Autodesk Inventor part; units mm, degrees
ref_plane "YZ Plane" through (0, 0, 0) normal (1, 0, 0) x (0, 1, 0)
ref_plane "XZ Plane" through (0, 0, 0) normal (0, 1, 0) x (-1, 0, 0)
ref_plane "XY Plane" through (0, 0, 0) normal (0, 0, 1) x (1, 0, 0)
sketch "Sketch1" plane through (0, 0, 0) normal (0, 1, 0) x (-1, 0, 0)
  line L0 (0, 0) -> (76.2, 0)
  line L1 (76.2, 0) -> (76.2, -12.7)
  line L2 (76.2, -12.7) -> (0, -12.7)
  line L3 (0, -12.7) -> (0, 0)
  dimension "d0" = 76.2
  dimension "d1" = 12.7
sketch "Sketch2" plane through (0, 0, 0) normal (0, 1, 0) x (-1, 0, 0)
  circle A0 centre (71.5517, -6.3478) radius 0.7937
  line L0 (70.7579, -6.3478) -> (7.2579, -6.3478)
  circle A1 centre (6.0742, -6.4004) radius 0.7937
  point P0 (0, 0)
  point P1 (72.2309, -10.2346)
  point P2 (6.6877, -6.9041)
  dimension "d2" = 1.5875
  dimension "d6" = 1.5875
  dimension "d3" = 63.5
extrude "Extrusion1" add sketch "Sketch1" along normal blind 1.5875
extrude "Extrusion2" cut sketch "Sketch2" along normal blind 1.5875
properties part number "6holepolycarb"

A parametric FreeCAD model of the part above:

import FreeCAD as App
import Part
import Sketcher
from FreeCAD import Vector
Q = App.Units.Quantity


def add_polygon(sketch, points):
    """Adds a closed chain of lines whose ends are joined by coincident constraints."""
    first, n = sketch.GeometryCount, len(points)
    for a, b in zip(points, points[1:] + points[:1]):
        sketch.addGeometry(Part.LineSegment(App.Vector(*a, 0), App.Vector(*b, 0)), False)
    for i in range(n):
        sketch.addConstraint(Sketcher.Constraint("Coincident", first + i, 2, first + (i + 1) % n, 1))

doc = App.newDocument("Part")
body = doc.addObject("PartDesign::Body", "Body")

# Sketch on XZ plane
sketch1 = doc.addObject("Sketcher::SketchObject", "Sketch")
body.addObject(sketch1)
sketch1.AttachmentSupport = (doc.XZ_Plane, [""])
sketch1.MapMode = "FlatFace"
add_polygon(sketch1, [(-76, 0), (0, 0), (0, -13), (-76, -13)])  # lines 0-3
sketch1.addConstraint([
    Sketcher.Constraint("Horizontal", 0),
    Sketcher.Constraint("Vertical", 1),
    Sketcher.Constraint("Horizontal", 2),
    Sketcher.Constraint("Vertical", 3),
    Sketcher.Constraint("Coincident", 0, 2, -1, 1),
    Sketcher.Constraint("DistanceX", 0, 1, 0, 2, Q("3 in")),
    Sketcher.Constraint("DistanceY", 1, 2, 1, 1, Q("0.5 in")),
])
pad1 = doc.addObject("PartDesign::Pad", "Pad")
body.addObject(pad1)
pad1.Profile = sketch1
pad1.Length = Q("0.0625 in")
pad1.Reversed = True

# Sketch on XZ plane
sketch2 = doc.addObject("Sketcher::SketchObject", "Sketch001")
body.addObject(sketch2)
sketch2.AttachmentSupport = (doc.XZ_Plane, [""])
sketch2.MapMode = "FlatFace"
sketch2.addGeometry([
    Part.Circle(Vector(-71.6, -6.3, 0), Vector(0, 0, 1), 0.8),
    Part.Circle(Vector(-6.1, -6.4, 0), Vector(0, 0, 1), 0.8),
], False)
sketch2.addConstraint([
    Sketcher.Constraint("Equal", 0, 1),
    Sketcher.Constraint("Diameter", 0, Q("0.0625 in")),
    Sketcher.Constraint("DistanceX", 0, 3, -1, 1, Q("2.817 in")),
    Sketcher.Constraint("DistanceY", 0, 3, -1, 1, Q("6.3478 mm")),
    Sketcher.Constraint("DistanceX", 1, 3, -1, 1, Q("6.0742 mm")),
    Sketcher.Constraint("DistanceY", 1, 3, -1, 1, Q("6.4004 mm")),
])
pocket1 = doc.addObject("PartDesign::Pocket", "Pocket")
body.addObject(pocket1)
pocket1.Profile = sketch2
pocket1.Length = Q("0.0625 in")

doc.recompute()
